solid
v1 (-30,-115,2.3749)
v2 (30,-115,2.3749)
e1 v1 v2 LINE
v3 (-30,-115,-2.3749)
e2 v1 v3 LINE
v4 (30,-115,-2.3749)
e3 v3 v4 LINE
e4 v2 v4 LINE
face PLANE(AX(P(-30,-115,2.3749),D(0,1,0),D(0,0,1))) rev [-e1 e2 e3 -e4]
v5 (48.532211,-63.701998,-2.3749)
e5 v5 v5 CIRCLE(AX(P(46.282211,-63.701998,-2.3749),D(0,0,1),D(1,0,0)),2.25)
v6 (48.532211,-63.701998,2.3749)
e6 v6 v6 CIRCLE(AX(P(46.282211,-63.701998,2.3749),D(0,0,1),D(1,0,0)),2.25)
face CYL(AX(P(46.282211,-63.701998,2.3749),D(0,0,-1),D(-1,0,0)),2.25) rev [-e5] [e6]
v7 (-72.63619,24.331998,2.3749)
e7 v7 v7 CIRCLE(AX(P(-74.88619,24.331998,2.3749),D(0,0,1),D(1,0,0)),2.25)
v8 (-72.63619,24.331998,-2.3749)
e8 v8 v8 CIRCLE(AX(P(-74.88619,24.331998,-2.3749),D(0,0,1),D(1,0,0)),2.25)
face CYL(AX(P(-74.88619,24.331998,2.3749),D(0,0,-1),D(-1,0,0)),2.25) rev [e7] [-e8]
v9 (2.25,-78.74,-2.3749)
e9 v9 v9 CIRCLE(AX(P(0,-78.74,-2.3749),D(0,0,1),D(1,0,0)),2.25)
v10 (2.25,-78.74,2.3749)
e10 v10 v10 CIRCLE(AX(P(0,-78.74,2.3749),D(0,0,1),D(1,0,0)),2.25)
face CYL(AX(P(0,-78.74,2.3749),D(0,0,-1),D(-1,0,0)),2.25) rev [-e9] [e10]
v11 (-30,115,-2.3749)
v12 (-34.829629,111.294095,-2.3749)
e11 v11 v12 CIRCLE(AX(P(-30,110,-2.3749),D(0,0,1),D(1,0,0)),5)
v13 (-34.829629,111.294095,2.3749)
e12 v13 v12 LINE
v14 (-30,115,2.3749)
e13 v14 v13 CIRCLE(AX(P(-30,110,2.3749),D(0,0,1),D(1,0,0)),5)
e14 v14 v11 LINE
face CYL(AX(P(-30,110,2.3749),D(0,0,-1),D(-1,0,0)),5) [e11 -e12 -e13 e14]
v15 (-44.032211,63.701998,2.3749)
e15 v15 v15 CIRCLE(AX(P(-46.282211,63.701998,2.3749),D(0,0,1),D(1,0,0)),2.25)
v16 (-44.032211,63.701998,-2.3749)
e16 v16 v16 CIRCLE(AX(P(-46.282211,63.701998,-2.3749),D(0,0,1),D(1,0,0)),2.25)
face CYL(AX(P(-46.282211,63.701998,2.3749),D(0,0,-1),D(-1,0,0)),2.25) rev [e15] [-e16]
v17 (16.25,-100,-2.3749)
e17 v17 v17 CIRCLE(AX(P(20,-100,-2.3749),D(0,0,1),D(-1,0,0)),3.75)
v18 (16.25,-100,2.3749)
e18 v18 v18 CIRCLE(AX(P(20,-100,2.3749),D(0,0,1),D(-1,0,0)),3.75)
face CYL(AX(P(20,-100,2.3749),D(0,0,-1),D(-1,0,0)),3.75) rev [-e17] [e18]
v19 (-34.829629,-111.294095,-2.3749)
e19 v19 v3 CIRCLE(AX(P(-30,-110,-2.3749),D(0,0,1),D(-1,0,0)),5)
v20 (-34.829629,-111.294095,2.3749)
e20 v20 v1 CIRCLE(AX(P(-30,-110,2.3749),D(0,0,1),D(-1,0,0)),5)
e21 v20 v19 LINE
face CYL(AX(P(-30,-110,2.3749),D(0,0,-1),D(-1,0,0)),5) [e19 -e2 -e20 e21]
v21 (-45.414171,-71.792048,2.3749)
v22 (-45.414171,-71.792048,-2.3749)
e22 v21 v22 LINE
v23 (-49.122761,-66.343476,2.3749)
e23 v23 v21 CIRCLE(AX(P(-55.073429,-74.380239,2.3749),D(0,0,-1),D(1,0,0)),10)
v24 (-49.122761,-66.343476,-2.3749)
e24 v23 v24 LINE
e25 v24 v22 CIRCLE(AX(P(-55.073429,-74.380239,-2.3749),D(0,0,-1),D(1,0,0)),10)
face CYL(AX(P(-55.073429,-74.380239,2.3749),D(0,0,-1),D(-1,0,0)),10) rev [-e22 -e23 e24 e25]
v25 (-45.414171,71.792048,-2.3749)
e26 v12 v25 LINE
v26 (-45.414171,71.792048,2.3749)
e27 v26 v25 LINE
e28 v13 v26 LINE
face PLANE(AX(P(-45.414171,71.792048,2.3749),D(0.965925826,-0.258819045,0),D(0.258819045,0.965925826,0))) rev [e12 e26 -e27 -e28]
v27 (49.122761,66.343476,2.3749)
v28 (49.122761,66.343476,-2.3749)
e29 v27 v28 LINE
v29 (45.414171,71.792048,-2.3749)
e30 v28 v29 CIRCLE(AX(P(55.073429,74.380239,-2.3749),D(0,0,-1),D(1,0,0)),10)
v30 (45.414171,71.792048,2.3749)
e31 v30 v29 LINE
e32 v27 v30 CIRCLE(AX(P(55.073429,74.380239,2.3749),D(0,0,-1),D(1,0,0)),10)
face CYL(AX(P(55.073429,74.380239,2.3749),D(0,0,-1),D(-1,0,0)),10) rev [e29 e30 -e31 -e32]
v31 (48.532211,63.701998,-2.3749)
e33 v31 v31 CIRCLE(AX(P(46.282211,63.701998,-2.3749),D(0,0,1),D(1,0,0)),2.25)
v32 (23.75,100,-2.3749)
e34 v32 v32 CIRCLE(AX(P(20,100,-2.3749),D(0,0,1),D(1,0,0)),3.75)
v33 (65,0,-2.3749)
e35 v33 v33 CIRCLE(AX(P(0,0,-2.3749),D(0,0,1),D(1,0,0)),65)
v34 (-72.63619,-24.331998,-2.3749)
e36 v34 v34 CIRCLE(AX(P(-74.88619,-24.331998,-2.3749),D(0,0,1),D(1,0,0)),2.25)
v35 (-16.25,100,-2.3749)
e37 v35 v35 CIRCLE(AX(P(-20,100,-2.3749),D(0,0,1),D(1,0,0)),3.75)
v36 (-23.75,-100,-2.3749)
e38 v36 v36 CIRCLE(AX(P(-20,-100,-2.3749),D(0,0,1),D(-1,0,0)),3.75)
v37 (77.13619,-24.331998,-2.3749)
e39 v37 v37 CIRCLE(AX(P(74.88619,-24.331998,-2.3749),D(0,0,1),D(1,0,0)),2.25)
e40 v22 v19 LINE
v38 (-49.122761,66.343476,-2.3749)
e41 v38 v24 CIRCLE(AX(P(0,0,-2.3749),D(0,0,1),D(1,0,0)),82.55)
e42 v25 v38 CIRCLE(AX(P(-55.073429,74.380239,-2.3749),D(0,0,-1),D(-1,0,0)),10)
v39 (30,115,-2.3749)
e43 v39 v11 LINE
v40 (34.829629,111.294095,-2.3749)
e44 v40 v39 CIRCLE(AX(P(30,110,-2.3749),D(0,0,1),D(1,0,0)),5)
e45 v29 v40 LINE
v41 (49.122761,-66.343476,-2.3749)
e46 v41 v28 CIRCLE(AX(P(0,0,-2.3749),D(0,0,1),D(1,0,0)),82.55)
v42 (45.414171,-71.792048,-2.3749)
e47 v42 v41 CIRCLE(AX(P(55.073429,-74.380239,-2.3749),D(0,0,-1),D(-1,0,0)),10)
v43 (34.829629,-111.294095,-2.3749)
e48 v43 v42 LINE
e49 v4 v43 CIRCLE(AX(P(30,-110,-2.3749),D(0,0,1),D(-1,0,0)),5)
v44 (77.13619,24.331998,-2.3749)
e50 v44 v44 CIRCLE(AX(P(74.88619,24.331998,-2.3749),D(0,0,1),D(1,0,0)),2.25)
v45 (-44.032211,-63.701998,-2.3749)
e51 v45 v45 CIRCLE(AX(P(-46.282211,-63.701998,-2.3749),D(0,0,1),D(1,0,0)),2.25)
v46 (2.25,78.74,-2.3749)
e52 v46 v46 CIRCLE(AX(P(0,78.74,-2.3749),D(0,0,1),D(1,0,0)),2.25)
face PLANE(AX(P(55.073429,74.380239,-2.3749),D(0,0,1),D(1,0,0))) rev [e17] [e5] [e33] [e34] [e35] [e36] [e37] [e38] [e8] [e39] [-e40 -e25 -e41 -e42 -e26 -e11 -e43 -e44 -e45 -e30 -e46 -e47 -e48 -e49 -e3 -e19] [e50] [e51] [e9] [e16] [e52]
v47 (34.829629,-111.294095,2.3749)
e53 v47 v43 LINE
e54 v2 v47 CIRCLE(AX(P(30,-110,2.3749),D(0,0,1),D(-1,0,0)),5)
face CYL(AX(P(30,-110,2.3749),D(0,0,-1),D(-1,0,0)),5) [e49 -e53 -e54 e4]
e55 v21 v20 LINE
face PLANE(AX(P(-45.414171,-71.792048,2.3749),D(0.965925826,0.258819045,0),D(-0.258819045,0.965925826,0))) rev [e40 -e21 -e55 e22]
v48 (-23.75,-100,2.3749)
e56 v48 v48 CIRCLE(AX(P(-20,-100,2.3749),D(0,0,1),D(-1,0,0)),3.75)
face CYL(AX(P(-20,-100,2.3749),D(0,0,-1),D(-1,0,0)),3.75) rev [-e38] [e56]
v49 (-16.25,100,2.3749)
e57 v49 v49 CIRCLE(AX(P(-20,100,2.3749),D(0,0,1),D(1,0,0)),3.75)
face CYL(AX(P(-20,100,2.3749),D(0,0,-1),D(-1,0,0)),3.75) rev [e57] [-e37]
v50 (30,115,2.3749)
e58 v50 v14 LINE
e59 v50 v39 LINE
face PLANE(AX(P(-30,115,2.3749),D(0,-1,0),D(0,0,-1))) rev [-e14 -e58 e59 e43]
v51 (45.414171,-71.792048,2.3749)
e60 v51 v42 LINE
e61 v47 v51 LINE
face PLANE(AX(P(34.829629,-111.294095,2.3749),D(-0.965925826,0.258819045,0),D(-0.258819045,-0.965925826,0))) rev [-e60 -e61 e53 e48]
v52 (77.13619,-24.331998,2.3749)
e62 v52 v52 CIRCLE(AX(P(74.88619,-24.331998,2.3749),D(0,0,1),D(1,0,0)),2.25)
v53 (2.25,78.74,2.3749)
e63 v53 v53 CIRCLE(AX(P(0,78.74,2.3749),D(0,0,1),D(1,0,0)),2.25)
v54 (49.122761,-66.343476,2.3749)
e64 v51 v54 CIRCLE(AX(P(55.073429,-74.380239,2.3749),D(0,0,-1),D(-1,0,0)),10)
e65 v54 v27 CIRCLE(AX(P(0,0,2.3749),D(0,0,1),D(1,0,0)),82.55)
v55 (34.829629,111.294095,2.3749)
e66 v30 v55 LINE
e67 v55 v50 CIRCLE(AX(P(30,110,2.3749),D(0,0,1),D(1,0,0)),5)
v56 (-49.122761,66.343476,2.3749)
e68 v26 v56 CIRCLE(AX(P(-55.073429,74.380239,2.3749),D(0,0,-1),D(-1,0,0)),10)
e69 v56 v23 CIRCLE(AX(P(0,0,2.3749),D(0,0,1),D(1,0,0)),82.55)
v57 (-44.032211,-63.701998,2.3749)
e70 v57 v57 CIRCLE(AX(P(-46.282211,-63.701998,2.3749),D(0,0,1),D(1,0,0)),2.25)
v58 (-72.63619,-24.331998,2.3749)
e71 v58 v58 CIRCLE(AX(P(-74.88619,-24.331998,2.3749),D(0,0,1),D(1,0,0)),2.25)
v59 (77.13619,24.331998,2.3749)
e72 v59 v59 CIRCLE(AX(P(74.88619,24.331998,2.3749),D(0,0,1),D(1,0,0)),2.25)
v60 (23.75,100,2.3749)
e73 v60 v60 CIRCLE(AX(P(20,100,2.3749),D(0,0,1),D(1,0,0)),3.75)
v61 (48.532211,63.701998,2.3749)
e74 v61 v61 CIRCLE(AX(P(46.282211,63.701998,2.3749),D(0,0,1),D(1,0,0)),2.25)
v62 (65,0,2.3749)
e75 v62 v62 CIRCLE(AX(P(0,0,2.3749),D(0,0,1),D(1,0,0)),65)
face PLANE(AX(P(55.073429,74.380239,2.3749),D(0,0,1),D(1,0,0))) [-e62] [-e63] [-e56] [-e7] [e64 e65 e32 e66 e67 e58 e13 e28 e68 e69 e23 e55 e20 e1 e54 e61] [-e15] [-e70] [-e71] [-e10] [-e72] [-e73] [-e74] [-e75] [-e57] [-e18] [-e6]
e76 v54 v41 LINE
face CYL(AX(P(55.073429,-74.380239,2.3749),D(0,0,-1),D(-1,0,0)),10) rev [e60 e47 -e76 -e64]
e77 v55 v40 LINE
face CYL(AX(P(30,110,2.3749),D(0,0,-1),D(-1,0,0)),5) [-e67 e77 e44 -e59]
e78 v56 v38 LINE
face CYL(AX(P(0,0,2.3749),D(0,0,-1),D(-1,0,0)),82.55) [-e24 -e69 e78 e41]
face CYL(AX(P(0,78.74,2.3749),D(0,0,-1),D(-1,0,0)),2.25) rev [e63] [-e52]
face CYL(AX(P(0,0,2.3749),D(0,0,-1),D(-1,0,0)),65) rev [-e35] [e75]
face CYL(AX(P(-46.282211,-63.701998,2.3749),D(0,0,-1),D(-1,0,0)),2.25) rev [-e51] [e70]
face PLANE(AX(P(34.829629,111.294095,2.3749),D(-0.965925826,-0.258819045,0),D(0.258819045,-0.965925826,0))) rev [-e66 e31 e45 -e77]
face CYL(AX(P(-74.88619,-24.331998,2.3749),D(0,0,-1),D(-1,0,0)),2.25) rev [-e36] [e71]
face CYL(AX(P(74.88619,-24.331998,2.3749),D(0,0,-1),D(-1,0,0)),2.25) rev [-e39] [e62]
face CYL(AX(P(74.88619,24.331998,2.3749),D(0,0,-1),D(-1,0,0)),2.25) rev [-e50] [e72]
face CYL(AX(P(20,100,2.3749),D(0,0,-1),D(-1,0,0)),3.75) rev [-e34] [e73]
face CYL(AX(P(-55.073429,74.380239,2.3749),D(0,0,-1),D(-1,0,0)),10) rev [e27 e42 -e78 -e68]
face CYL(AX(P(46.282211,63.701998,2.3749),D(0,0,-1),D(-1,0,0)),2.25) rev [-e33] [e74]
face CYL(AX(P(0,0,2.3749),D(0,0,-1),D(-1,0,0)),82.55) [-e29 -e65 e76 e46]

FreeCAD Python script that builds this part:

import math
import FreeCAD as App
import Part
import Sketcher
from FreeCAD import Vector
Q = App.Units.Quantity

doc = App.newDocument("Part")
body = doc.addObject("PartDesign::Body", "Body")

sketch1 = body.newObject("Sketcher::SketchObject", "Sketch")
sketch1.AttachmentSupport = (doc.getObject("XY_Plane"), [""])
sketch1.MapMode = "FlatFace"
sketch1.addGeometry(Part.LineSegment(Vector(-34.8, 111.3, 0), Vector(-45.4, 71.8, 0)), False)
sketch1.addGeometry(Part.ArcOfCircle(Part.Circle(Vector(-55.1, 74.4, 0), Vector(0, 0, 1), 10), math.radians(-53), math.radians(-15)), False)
sketch1.addGeometry(Part.ArcOfCircle(Part.Circle(Vector(0, 0, 0), Vector(0, 0, 1), 82.5), math.radians(127), math.radians(233)), False)
sketch1.addGeometry(Part.ArcOfCircle(Part.Circle(Vector(-55.1, -74.4, 0), Vector(0, 0, 1), 10), math.radians(15), math.radians(53)), False)
sketch1.addGeometry(Part.LineSegment(Vector(-45.4, -71.8, 0), Vector(-34.8, -111.3, 0)), False)
sketch1.addGeometry(Part.ArcOfCircle(Part.Circle(Vector(-30, -110, 0), Vector(0, 0, 1), 5), math.radians(-165), math.radians(-90)), False)
sketch1.addGeometry(Part.LineSegment(Vector(-30, -115, 0), Vector(30, -115, 0)), False)
sketch1.addGeometry(Part.ArcOfCircle(Part.Circle(Vector(30, -110, 0), Vector(0, 0, 1), 5), math.radians(-90), math.radians(-15)), False)
sketch1.addGeometry(Part.LineSegment(Vector(34.8, -111.3, 0), Vector(45.4, -71.8, 0)), False)
sketch1.addGeometry(Part.ArcOfCircle(Part.Circle(Vector(55.1, -74.4, 0), Vector(0, 0, 1), 10), math.radians(127), math.radians(165)), False)
sketch1.addGeometry(Part.ArcOfCircle(Part.Circle(Vector(0, 0, 0), Vector(0, 0, 1), 82.5), math.radians(-53), math.radians(53)), False)
sketch1.addGeometry(Part.ArcOfCircle(Part.Circle(Vector(55.1, 74.4, 0), Vector(0, 0, 1), 10), math.radians(-165), math.radians(-127)), False)
sketch1.addGeometry(Part.LineSegment(Vector(45.4, 71.8, 0), Vector(34.8, 111.3, 0)), False)
sketch1.addGeometry(Part.ArcOfCircle(Part.Circle(Vector(30, 110, 0), Vector(0, 0, 1), 5), math.radians(15), math.radians(90)), False)
sketch1.addGeometry(Part.LineSegment(Vector(30, 115, 0), Vector(-30, 115, 0)), False)
sketch1.addGeometry(Part.ArcOfCircle(Part.Circle(Vector(-30, 110, 0), Vector(0, 0, 1), 5), math.radians(90), math.radians(165)), False)
sketch1.addGeometry(Part.Circle(Vector(46.3, -63.7, 0), Vector(0, 0, 1), 2.2), False)
sketch1.addGeometry(Part.Circle(Vector(20, -100, 0), Vector(0, 0, 1), 3.8), False)
sketch1.addGeometry(Part.Circle(Vector(74.9, -24.3, 0), Vector(0, 0, 1), 2.2), False)
sketch1.addGeometry(Part.Circle(Vector(0, -78.7, 0), Vector(0, 0, 1), 2.2), False)
sketch1.addGeometry(Part.Circle(Vector(-20, -100, 0), Vector(0, 0, 1), 3.8), False)
sketch1.addGeometry(Part.Circle(Vector(-46.3, -63.7, 0), Vector(0, 0, 1), 2.2), False)
sketch1.addGeometry(Part.Circle(Vector(-74.9, -24.3, 0), Vector(0, 0, 1), 2.2), False)
sketch1.addGeometry(Part.Circle(Vector(74.9, 24.3, 0), Vector(0, 0, 1), 2.2), False)
sketch1.addGeometry(Part.Circle(Vector(46.3, 63.7, 0), Vector(0, 0, 1), 2.2), False)
sketch1.addGeometry(Part.Circle(Vector(20, 100, 0), Vector(0, 0, 1), 3.8), False)
sketch1.addGeometry(Part.Circle(Vector(0, 0, 0), Vector(0, 0, 1), 65), False)
sketch1.addGeometry(Part.Circle(Vector(-74.9, 24.3, 0), Vector(0, 0, 1), 2.2), False)
sketch1.addGeometry(Part.Circle(Vector(0, 78.7, 0), Vector(0, 0, 1), 2.2), False)
sketch1.addGeometry(Part.Circle(Vector(-20, 100, 0), Vector(0, 0, 1), 3.8), False)
sketch1.addGeometry(Part.Circle(Vector(-46.3, 63.7, 0), Vector(0, 0, 1), 2.2), False)
sketch1.addConstraint(Sketcher.Constraint("Tangent", 0, 2, 1, 2))
sketch1.addConstraint(Sketcher.Constraint("Tangent", 1, 1, 2, 1))
sketch1.addConstraint(Sketcher.Constraint("Tangent", 2, 2, 3, 2))
sketch1.addConstraint(Sketcher.Constraint("Tangent", 3, 1, 4, 1))
sketch1.addConstraint(Sketcher.Constraint("Tangent", 4, 2, 5, 1))
sketch1.addConstraint(Sketcher.Constraint("Tangent", 5, 2, 6, 1))
sketch1.addConstraint(Sketcher.Constraint("Tangent", 6, 2, 7, 1))
sketch1.addConstraint(Sketcher.Constraint("Tangent", 7, 2, 8, 1))
sketch1.addConstraint(Sketcher.Constraint("Tangent", 8, 2, 9, 2))
sketch1.addConstraint(Sketcher.Constraint("Tangent", 9, 1, 10, 1))
sketch1.addConstraint(Sketcher.Constraint("Tangent", 10, 2, 11, 2))
sketch1.addConstraint(Sketcher.Constraint("Tangent", 11, 1, 12, 1))
sketch1.addConstraint(Sketcher.Constraint("Tangent", 12, 2, 13, 1))
sketch1.addConstraint(Sketcher.Constraint("Tangent", 13, 2, 14, 1))
sketch1.addConstraint(Sketcher.Constraint("Tangent", 14, 2, 15, 1))
sketch1.addConstraint(Sketcher.Constraint("Tangent", 15, 2, 0, 1))
sketch1.addConstraint(Sketcher.Constraint("Horizontal", 6))
sketch1.addConstraint(Sketcher.Constraint("Horizontal", 14))
sketch1.addConstraint(Sketcher.Constraint("Coincident", 2, 3, -1, 1))
sketch1.addConstraint(Sketcher.Constraint("Coincident", 10, 3, -1, 1))
sketch1.addConstraint(Sketcher.Constraint("Coincident", 26, 3, -1, 1))
sketch1.addConstraint(Sketcher.Constraint("Equal", 1, 3))
sketch1.addConstraint(Sketcher.Constraint("Equal", 5, 7))
sketch1.addConstraint(Sketcher.Constraint("Equal", 3, 9))
sketch1.addConstraint(Sketcher.Constraint("Equal", 2, 10))
sketch1.addConstraint(Sketcher.Constraint("Equal", 9, 11))
sketch1.addConstraint(Sketcher.Constraint("Equal", 7, 13))
sketch1.addConstraint(Sketcher.Constraint("Equal", 13, 15))
sketch1.addConstraint(Sketcher.Constraint("Equal", 16, 18))
sketch1.addConstraint(Sketcher.Constraint("Equal", 18, 19))
sketch1.addConstraint(Sketcher.Constraint("Equal", 17, 20))
sketch1.addConstraint(Sketcher.Constraint("Equal", 19, 21))
sketch1.addConstraint(Sketcher.Constraint("Equal", 21, 22))
sketch1.addConstraint(Sketcher.Constraint("Equal", 22, 23))
sketch1.addConstraint(Sketcher.Constraint("Equal", 23, 24))
sketch1.addConstraint(Sketcher.Constraint("Equal", 20, 25))
sketch1.addConstraint(Sketcher.Constraint("Equal", 24, 27))
sketch1.addConstraint(Sketcher.Constraint("Equal", 27, 28))
sketch1.addConstraint(Sketcher.Constraint("Equal", 25, 29))
sketch1.addConstraint(Sketcher.Constraint("Equal", 28, 30))
sketch1.addConstraint(Sketcher.Constraint("Symmetric", 5, 3, 13, 3, -1, 1))
sketch1.addConstraint(Sketcher.Constraint("Symmetric", 22, 3, 23, 3, -1, 1))
sketch1.addConstraint(Sketcher.Constraint("Symmetric", 21, 3, 24, 3, -1, 1))
sketch1.addConstraint(Sketcher.Constraint("Symmetric", 20, 3, 25, 3, -1, 1))
sketch1.addConstraint(Sketcher.Constraint("Symmetric", 18, 3, 27, 3, -1, 1))
sketch1.addConstraint(Sketcher.Constraint("Symmetric", 19, 3, 28, 3, -1, 1))
sketch1.addConstraint(Sketcher.Constraint("Symmetric", 17, 3, 29, 3, -1, 1))
sketch1.addConstraint(Sketcher.Constraint("Symmetric", 16, 3, 30, 3, -1, 1))
sketch1.addConstraint(Sketcher.Constraint("Symmetric", 0, 2, 8, 2, -1, 1))
sketch1.addConstraint(Sketcher.Constraint("Symmetric", 17, 3, 20, 3, -2))
sketch1.addConstraint(Sketcher.Constraint("Symmetric", 16, 3, 21, 3, -2))
sketch1.addConstraint(Sketcher.Constraint("Symmetric", 18, 3, 22, 3, -2))
sketch1.addConstraint(Sketcher.Constraint("Symmetric", 4, 2, 7, 2, -2))
sketch1.addConstraint(Sketcher.Constraint("PointOnObject", 19, 3, -2))
sketch1.addConstraint(Sketcher.Constraint("Parallel", 4, 12))
sketch1.addConstraint(Sketcher.Constraint("Diameter", 26, 130.0))
sketch1.addConstraint(Sketcher.Constraint("Radius", 1, 10.0))
sketch1.addConstraint(Sketcher.Constraint("Radius", 5, 5.0))
sketch1.addConstraint(Sketcher.Constraint("Diameter", 16, 4.5))
sketch1.addConstraint(Sketcher.Constraint("Diameter", 17, 7.5))
sketch1.addConstraint(Sketcher.Constraint("DistanceX", 6, 1, 6, 2, 60.0))
sketch1.addConstraint(Sketcher.Constraint("Angle", 0, Q("-105 deg")))
sketch1.addConstraint(Sketcher.Constraint("Radius", 2, 82.55))
sketch1.addConstraint(Sketcher.Constraint("DistanceY", 5, 3, -1, 1, 110.0))
sketch1.addConstraint(Sketcher.Constraint("DistanceX", -1, 1, 17, 3, 20.0))
sketch1.addConstraint(Sketcher.Constraint("DistanceY", 17, 3, -1, 1, 100.0))
sketch1.addConstraint(Sketcher.Constraint("DistanceY", 19, 3, -1, 1, 78.74))
sketch1.addConstraint(Sketcher.Constraint("DistanceY", 16, 3, 18, 3, 39.37))
sketch1.addConstraint(Sketcher.Constraint("DistanceY", 16, 3, -1, 1, 63.701998))
sketch1.addConstraint(Sketcher.Constraint("DistanceX", -1, 1, 16, 3, 46.282211))
sketch1.addConstraint(Sketcher.Constraint("DistanceX", -1, 1, 18, 3, 74.88619))
pad1 = body.newObject("PartDesign::Pad", "Pad")
pad1.Profile = sketch1
pad1.Length = 4.7498
pad1.Midplane = True

doc.recompute()
